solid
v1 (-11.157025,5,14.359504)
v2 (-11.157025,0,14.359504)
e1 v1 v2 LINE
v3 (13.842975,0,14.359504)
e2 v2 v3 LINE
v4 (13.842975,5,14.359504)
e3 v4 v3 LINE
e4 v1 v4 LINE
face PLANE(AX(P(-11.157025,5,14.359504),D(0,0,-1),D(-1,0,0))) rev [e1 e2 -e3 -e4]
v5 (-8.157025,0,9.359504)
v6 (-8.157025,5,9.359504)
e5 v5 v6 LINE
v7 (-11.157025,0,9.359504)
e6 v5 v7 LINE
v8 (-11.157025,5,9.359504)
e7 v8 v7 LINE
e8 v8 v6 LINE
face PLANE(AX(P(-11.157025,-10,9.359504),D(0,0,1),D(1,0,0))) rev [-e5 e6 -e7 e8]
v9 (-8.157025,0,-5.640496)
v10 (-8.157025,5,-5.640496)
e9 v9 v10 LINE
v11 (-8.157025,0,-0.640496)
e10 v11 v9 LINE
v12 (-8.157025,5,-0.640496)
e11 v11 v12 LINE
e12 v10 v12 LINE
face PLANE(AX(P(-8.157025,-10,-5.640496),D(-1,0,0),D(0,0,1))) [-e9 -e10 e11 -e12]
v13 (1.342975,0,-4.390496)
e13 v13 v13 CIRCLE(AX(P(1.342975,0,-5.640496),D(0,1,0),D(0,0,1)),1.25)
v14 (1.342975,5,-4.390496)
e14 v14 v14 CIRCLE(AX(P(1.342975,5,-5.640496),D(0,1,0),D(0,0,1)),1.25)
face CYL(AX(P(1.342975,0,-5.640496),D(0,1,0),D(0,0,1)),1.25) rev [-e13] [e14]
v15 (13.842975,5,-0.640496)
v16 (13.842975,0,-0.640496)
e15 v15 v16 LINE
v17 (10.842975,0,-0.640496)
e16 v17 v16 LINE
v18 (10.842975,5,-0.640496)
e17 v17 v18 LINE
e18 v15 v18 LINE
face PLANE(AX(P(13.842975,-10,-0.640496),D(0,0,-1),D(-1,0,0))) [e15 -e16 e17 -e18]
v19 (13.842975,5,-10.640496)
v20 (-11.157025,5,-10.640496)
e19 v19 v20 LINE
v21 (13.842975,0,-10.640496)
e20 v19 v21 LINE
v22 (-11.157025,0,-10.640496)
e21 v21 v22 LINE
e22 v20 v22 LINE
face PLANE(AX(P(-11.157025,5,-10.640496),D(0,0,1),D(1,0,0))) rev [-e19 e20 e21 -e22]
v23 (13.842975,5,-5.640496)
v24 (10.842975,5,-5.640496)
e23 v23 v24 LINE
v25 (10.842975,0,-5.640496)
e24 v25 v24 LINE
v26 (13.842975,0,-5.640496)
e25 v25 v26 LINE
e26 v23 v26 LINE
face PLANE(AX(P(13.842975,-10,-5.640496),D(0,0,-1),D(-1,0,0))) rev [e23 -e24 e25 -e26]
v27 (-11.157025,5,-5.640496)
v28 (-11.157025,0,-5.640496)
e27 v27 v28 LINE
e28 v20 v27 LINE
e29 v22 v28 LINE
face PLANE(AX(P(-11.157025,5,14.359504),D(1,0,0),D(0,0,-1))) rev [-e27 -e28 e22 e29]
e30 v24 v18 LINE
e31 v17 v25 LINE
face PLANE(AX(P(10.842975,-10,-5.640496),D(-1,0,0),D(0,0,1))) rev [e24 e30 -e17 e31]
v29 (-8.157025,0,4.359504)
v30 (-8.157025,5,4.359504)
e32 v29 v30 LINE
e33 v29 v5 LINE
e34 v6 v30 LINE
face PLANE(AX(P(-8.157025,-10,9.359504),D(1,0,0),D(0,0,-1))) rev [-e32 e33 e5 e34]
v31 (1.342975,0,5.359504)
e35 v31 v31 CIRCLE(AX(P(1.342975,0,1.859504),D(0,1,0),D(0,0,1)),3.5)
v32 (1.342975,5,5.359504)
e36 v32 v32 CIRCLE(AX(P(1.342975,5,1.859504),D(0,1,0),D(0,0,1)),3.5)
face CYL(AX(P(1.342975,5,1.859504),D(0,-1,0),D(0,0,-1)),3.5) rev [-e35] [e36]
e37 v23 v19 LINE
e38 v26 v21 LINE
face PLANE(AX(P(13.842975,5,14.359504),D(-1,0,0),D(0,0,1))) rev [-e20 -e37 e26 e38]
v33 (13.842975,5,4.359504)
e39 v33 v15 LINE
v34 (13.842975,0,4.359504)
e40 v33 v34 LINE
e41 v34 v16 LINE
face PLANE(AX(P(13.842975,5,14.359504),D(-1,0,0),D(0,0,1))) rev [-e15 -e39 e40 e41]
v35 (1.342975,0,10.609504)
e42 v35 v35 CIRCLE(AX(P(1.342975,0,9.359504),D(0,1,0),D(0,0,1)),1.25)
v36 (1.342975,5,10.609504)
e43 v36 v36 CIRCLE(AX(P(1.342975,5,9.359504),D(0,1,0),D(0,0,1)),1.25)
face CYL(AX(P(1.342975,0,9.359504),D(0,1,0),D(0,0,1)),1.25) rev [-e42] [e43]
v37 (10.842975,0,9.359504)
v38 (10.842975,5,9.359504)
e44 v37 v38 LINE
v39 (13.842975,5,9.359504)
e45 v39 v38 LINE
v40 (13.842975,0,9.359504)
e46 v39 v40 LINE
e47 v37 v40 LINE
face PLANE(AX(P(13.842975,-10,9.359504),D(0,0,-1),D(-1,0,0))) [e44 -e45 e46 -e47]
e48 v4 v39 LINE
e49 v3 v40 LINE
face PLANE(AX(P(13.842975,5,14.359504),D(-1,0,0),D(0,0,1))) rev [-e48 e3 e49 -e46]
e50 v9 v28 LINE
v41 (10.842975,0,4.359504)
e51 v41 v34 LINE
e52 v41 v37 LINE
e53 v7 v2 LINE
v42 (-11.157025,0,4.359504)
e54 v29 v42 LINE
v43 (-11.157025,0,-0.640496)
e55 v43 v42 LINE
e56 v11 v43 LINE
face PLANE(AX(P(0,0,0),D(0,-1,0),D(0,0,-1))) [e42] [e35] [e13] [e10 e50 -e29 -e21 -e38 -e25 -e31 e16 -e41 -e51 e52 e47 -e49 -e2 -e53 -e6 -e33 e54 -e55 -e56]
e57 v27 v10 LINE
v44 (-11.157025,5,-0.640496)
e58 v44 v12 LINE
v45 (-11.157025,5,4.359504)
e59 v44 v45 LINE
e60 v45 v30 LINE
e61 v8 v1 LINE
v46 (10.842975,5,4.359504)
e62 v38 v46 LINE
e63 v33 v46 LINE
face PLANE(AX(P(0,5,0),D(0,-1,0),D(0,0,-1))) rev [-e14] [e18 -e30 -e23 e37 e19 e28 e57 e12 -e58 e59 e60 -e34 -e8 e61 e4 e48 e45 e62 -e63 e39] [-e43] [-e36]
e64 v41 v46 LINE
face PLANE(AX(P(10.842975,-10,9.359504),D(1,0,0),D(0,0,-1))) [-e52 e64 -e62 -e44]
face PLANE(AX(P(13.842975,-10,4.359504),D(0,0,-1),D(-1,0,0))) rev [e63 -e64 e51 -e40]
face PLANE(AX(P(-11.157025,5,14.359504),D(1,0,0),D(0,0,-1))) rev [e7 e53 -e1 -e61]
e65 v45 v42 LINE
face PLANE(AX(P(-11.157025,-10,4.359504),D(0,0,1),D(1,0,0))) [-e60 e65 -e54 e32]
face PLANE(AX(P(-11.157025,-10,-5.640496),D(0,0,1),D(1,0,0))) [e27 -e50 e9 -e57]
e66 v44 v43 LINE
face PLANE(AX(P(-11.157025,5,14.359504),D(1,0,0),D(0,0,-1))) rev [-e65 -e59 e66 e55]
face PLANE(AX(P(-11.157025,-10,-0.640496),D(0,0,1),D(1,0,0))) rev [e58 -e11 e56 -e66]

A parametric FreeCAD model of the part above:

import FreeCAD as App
import Part
import Sketcher
from FreeCAD import Vector


def add_polygon(sketch, points):
    """Adds a closed chain of lines whose ends are joined by coincident constraints."""
    first, n = sketch.GeometryCount, len(points)
    for a, b in zip(points, points[1:] + points[:1]):
        sketch.addGeometry(Part.LineSegment(App.Vector(*a, 0), App.Vector(*b, 0)), False)
    for i in range(n):
        sketch.addConstraint(Sketcher.Constraint("Coincident", first + i, 2, first + (i + 1) % n, 1))

doc = App.newDocument("Part")
body = doc.addObject("PartDesign::Body", "Body")

sketch1 = doc.addObject("Sketcher::SketchObject", "Sketch")
body.addObject(sketch1)
sketch1.AttachmentSupport = (doc.XZ_Plane, [""])
sketch1.MapMode = "FlatFace"
add_polygon(sketch1, [(-11.157025, -10.640496), (-11.157025, 14.359504), (13.842975, 14.359504), (13.842975, -10.640496)])
sketch1.addGeometry(Part.Circle(Vector(1.342975, 1.859504, 0), Vector(0, 0, 1), 3.5), False)
sketch1.addConstraint(Sketcher.Constraint("Vertical", 0))
sketch1.addConstraint(Sketcher.Constraint("Horizontal", 1))
sketch1.addConstraint(Sketcher.Constraint("Vertical", 2))
sketch1.addConstraint(Sketcher.Constraint("Horizontal", 3))
sketch1.addConstraint(Sketcher.Constraint("Equal", 3, 0))
sketch1.addConstraint(Sketcher.Constraint("Diameter", 4, 7.0))
sketch1.addConstraint(Sketcher.Constraint("DistanceX", 1, 1, 1, 2, 25.0))
sketch1.addConstraint(Sketcher.Constraint("DistanceX", 0, 2, 4, 3, 12.5))
sketch1.addConstraint(Sketcher.Constraint("DistanceY", 4, 3, 0, 2, 12.5))
sketch1.addConstraint(Sketcher.Constraint("DistanceX", -1, 1, 4, 3, 1.342975))
sketch1.addConstraint(Sketcher.Constraint("DistanceY", -1, 1, 4, 3, 1.859504))
pad1 = doc.addObject("PartDesign::Pad", "Pad")
body.addObject(pad1)
pad1.Profile = sketch1
pad1.Length = 5
pad1.Reversed = True

sketch2 = doc.addObject("Sketcher::SketchObject", "Sketch001")
body.addObject(sketch2)
sketch2.AttachmentSupport = (doc.XZ_Plane, [""])
sketch2.MapMode = "FlatFace"
sketch2.AttachmentOffset = App.Placement(Vector(0, 0, -5), App.Rotation())
add_polygon(sketch2, [(-11.157025, -5.640496), (-11.157025, -0.640496), (-8.157025, -0.640496), (-8.157025, -5.640496)])
add_polygon(sketch2, [(-11.157025, 4.359504), (-11.157025, 9.359504), (-8.157025, 9.359504), (-8.157025, 4.359504)])
add_polygon(sketch2, [(10.842975, 4.359504), (10.842975, 9.359504), (13.842975, 9.359504), (13.842975, 4.359504)])
add_polygon(sketch2, [(10.842975, -5.640496), (10.842975, -0.640496), (13.842975, -0.640496), (13.842975, -5.640496)])
sketch2.addConstraint(Sketcher.Constraint("Vertical", 0))
sketch2.addConstraint(Sketcher.Constraint("Horizontal", 1))
sketch2.addConstraint(Sketcher.Constraint("Vertical", 2))
sketch2.addConstraint(Sketcher.Constraint("Horizontal", 3))
sketch2.addConstraint(Sketcher.Constraint("Vertical", 4))
sketch2.addConstraint(Sketcher.Constraint("Horizontal", 5))
sketch2.addConstraint(Sketcher.Constraint("Vertical", 6))
sketch2.addConstraint(Sketcher.Constraint("Horizontal", 7))
sketch2.addConstraint(Sketcher.Constraint("Vertical", 8))
sketch2.addConstraint(Sketcher.Constraint("Horizontal", 9))
sketch2.addConstraint(Sketcher.Constraint("Vertical", 10))
sketch2.addConstraint(Sketcher.Constraint("Horizontal", 11))
sketch2.addConstraint(Sketcher.Constraint("Vertical", 12))
sketch2.addConstraint(Sketcher.Constraint("Horizontal", 13))
sketch2.addConstraint(Sketcher.Constraint("Vertical", 14))
sketch2.addConstraint(Sketcher.Constraint("Horizontal", 15))
sketch2.addConstraint(Sketcher.Constraint("Horizontal", 5, 2, 8, 2))
sketch2.addConstraint(Sketcher.Constraint("Horizontal", 7, 2, 10, 2))
sketch2.addConstraint(Sketcher.Constraint("Horizontal", 1, 2, 12, 2))
sketch2.addConstraint(Sketcher.Constraint("Horizontal", 3, 2, 14, 2))
sketch2.addConstraint(Sketcher.Constraint("Vertical", 3, 2, 4, 2))
sketch2.addConstraint(Sketcher.Constraint("Vertical", 2, 2, 5, 2))
sketch2.addConstraint(Sketcher.Constraint("Vertical", 11, 2, 12, 2))
sketch2.addConstraint(Sketcher.Constraint("Vertical", 10, 2, 13, 2))
sketch2.addConstraint(Sketcher.Constraint("Equal", 7, 9))
sketch2.addConstraint(Sketcher.Constraint("Equal", 2, 4))
sketch2.addConstraint(Sketcher.Constraint("DistanceX", 1, 1, 1, 2, 3.0))
sketch2.addConstraint(Sketcher.Constraint("DistanceY", 0, 1, 0, 2, 5.0))
sketch2.addConstraint(Sketcher.Constraint("DistanceY", 0, 2, 4, 2, 10.0))
sketch2.addConstraint(Sketcher.Constraint("DistanceX", 5, 2, 8, 2, 19.0))
sketch2.addConstraint(Sketcher.Constraint("DistanceX", 0, 2, -1, 1, 11.157025))
sketch2.addConstraint(Sketcher.Constraint("DistanceY", 0, 2, -1, 1, 0.640496))
pocket1 = doc.addObject("PartDesign::Pocket", "Pocket")
body.addObject(pocket1)
pocket1.Profile = sketch2
pocket1.Length = 15
pocket1.Reversed = True

sketch3 = doc.addObject("Sketcher::SketchObject", "Sketch002")
body.addObject(sketch3)
sketch3.AttachmentSupport = (doc.XZ_Plane, [""])
sketch3.MapMode = "FlatFace"
sketch3.AttachmentOffset = App.Placement(Vector(0, 0, -5), App.Rotation())
sketch3.addGeometry(Part.Circle(Vector(1.342975, -5.640496, 0), Vector(0, 0, 1), 1.25), False)
sketch3.addGeometry(Part.Circle(Vector(1.342975, 9.359504, 0), Vector(0, 0, 1), 1.25), False)
sketch3.addGeometry(Part.Circle(Vector(1.342975, 1.859504, 0), Vector(0, 0, 1), 3.402319), False)
sketch3.addConstraint(Sketcher.Constraint("Equal", 0, 1))
sketch3.addConstraint(Sketcher.Constraint("Vertical", 0, 3, 1, 3))
sketch3.addConstraint(Sketcher.Constraint("Vertical", 1, 3, 2, 3))
sketch3.addConstraint(Sketcher.Constraint("Diameter", 0, 2.5))
sketch3.addConstraint(Sketcher.Constraint("DistanceY", 0, 3, 1, 3, 15.0))
sketch3.addConstraint(Sketcher.Constraint("DistanceY", 0, 3, 2, 3, 7.5))
sketch3.addConstraint(Sketcher.Constraint("Diameter", 2, 6.804638))
sketch3.addConstraint(Sketcher.Constraint("DistanceX", -1, 1, 0, 3, 1.342975))
sketch3.addConstraint(Sketcher.Constraint("DistanceY", 0, 3, -1, 1, 5.640496))
pocket2 = doc.addObject("PartDesign::Pocket", "Pocket001")
body.addObject(pocket2)
pocket2.Profile = sketch3
pocket2.Length = 5
pocket2.Reversed = True

doc.recompute()
